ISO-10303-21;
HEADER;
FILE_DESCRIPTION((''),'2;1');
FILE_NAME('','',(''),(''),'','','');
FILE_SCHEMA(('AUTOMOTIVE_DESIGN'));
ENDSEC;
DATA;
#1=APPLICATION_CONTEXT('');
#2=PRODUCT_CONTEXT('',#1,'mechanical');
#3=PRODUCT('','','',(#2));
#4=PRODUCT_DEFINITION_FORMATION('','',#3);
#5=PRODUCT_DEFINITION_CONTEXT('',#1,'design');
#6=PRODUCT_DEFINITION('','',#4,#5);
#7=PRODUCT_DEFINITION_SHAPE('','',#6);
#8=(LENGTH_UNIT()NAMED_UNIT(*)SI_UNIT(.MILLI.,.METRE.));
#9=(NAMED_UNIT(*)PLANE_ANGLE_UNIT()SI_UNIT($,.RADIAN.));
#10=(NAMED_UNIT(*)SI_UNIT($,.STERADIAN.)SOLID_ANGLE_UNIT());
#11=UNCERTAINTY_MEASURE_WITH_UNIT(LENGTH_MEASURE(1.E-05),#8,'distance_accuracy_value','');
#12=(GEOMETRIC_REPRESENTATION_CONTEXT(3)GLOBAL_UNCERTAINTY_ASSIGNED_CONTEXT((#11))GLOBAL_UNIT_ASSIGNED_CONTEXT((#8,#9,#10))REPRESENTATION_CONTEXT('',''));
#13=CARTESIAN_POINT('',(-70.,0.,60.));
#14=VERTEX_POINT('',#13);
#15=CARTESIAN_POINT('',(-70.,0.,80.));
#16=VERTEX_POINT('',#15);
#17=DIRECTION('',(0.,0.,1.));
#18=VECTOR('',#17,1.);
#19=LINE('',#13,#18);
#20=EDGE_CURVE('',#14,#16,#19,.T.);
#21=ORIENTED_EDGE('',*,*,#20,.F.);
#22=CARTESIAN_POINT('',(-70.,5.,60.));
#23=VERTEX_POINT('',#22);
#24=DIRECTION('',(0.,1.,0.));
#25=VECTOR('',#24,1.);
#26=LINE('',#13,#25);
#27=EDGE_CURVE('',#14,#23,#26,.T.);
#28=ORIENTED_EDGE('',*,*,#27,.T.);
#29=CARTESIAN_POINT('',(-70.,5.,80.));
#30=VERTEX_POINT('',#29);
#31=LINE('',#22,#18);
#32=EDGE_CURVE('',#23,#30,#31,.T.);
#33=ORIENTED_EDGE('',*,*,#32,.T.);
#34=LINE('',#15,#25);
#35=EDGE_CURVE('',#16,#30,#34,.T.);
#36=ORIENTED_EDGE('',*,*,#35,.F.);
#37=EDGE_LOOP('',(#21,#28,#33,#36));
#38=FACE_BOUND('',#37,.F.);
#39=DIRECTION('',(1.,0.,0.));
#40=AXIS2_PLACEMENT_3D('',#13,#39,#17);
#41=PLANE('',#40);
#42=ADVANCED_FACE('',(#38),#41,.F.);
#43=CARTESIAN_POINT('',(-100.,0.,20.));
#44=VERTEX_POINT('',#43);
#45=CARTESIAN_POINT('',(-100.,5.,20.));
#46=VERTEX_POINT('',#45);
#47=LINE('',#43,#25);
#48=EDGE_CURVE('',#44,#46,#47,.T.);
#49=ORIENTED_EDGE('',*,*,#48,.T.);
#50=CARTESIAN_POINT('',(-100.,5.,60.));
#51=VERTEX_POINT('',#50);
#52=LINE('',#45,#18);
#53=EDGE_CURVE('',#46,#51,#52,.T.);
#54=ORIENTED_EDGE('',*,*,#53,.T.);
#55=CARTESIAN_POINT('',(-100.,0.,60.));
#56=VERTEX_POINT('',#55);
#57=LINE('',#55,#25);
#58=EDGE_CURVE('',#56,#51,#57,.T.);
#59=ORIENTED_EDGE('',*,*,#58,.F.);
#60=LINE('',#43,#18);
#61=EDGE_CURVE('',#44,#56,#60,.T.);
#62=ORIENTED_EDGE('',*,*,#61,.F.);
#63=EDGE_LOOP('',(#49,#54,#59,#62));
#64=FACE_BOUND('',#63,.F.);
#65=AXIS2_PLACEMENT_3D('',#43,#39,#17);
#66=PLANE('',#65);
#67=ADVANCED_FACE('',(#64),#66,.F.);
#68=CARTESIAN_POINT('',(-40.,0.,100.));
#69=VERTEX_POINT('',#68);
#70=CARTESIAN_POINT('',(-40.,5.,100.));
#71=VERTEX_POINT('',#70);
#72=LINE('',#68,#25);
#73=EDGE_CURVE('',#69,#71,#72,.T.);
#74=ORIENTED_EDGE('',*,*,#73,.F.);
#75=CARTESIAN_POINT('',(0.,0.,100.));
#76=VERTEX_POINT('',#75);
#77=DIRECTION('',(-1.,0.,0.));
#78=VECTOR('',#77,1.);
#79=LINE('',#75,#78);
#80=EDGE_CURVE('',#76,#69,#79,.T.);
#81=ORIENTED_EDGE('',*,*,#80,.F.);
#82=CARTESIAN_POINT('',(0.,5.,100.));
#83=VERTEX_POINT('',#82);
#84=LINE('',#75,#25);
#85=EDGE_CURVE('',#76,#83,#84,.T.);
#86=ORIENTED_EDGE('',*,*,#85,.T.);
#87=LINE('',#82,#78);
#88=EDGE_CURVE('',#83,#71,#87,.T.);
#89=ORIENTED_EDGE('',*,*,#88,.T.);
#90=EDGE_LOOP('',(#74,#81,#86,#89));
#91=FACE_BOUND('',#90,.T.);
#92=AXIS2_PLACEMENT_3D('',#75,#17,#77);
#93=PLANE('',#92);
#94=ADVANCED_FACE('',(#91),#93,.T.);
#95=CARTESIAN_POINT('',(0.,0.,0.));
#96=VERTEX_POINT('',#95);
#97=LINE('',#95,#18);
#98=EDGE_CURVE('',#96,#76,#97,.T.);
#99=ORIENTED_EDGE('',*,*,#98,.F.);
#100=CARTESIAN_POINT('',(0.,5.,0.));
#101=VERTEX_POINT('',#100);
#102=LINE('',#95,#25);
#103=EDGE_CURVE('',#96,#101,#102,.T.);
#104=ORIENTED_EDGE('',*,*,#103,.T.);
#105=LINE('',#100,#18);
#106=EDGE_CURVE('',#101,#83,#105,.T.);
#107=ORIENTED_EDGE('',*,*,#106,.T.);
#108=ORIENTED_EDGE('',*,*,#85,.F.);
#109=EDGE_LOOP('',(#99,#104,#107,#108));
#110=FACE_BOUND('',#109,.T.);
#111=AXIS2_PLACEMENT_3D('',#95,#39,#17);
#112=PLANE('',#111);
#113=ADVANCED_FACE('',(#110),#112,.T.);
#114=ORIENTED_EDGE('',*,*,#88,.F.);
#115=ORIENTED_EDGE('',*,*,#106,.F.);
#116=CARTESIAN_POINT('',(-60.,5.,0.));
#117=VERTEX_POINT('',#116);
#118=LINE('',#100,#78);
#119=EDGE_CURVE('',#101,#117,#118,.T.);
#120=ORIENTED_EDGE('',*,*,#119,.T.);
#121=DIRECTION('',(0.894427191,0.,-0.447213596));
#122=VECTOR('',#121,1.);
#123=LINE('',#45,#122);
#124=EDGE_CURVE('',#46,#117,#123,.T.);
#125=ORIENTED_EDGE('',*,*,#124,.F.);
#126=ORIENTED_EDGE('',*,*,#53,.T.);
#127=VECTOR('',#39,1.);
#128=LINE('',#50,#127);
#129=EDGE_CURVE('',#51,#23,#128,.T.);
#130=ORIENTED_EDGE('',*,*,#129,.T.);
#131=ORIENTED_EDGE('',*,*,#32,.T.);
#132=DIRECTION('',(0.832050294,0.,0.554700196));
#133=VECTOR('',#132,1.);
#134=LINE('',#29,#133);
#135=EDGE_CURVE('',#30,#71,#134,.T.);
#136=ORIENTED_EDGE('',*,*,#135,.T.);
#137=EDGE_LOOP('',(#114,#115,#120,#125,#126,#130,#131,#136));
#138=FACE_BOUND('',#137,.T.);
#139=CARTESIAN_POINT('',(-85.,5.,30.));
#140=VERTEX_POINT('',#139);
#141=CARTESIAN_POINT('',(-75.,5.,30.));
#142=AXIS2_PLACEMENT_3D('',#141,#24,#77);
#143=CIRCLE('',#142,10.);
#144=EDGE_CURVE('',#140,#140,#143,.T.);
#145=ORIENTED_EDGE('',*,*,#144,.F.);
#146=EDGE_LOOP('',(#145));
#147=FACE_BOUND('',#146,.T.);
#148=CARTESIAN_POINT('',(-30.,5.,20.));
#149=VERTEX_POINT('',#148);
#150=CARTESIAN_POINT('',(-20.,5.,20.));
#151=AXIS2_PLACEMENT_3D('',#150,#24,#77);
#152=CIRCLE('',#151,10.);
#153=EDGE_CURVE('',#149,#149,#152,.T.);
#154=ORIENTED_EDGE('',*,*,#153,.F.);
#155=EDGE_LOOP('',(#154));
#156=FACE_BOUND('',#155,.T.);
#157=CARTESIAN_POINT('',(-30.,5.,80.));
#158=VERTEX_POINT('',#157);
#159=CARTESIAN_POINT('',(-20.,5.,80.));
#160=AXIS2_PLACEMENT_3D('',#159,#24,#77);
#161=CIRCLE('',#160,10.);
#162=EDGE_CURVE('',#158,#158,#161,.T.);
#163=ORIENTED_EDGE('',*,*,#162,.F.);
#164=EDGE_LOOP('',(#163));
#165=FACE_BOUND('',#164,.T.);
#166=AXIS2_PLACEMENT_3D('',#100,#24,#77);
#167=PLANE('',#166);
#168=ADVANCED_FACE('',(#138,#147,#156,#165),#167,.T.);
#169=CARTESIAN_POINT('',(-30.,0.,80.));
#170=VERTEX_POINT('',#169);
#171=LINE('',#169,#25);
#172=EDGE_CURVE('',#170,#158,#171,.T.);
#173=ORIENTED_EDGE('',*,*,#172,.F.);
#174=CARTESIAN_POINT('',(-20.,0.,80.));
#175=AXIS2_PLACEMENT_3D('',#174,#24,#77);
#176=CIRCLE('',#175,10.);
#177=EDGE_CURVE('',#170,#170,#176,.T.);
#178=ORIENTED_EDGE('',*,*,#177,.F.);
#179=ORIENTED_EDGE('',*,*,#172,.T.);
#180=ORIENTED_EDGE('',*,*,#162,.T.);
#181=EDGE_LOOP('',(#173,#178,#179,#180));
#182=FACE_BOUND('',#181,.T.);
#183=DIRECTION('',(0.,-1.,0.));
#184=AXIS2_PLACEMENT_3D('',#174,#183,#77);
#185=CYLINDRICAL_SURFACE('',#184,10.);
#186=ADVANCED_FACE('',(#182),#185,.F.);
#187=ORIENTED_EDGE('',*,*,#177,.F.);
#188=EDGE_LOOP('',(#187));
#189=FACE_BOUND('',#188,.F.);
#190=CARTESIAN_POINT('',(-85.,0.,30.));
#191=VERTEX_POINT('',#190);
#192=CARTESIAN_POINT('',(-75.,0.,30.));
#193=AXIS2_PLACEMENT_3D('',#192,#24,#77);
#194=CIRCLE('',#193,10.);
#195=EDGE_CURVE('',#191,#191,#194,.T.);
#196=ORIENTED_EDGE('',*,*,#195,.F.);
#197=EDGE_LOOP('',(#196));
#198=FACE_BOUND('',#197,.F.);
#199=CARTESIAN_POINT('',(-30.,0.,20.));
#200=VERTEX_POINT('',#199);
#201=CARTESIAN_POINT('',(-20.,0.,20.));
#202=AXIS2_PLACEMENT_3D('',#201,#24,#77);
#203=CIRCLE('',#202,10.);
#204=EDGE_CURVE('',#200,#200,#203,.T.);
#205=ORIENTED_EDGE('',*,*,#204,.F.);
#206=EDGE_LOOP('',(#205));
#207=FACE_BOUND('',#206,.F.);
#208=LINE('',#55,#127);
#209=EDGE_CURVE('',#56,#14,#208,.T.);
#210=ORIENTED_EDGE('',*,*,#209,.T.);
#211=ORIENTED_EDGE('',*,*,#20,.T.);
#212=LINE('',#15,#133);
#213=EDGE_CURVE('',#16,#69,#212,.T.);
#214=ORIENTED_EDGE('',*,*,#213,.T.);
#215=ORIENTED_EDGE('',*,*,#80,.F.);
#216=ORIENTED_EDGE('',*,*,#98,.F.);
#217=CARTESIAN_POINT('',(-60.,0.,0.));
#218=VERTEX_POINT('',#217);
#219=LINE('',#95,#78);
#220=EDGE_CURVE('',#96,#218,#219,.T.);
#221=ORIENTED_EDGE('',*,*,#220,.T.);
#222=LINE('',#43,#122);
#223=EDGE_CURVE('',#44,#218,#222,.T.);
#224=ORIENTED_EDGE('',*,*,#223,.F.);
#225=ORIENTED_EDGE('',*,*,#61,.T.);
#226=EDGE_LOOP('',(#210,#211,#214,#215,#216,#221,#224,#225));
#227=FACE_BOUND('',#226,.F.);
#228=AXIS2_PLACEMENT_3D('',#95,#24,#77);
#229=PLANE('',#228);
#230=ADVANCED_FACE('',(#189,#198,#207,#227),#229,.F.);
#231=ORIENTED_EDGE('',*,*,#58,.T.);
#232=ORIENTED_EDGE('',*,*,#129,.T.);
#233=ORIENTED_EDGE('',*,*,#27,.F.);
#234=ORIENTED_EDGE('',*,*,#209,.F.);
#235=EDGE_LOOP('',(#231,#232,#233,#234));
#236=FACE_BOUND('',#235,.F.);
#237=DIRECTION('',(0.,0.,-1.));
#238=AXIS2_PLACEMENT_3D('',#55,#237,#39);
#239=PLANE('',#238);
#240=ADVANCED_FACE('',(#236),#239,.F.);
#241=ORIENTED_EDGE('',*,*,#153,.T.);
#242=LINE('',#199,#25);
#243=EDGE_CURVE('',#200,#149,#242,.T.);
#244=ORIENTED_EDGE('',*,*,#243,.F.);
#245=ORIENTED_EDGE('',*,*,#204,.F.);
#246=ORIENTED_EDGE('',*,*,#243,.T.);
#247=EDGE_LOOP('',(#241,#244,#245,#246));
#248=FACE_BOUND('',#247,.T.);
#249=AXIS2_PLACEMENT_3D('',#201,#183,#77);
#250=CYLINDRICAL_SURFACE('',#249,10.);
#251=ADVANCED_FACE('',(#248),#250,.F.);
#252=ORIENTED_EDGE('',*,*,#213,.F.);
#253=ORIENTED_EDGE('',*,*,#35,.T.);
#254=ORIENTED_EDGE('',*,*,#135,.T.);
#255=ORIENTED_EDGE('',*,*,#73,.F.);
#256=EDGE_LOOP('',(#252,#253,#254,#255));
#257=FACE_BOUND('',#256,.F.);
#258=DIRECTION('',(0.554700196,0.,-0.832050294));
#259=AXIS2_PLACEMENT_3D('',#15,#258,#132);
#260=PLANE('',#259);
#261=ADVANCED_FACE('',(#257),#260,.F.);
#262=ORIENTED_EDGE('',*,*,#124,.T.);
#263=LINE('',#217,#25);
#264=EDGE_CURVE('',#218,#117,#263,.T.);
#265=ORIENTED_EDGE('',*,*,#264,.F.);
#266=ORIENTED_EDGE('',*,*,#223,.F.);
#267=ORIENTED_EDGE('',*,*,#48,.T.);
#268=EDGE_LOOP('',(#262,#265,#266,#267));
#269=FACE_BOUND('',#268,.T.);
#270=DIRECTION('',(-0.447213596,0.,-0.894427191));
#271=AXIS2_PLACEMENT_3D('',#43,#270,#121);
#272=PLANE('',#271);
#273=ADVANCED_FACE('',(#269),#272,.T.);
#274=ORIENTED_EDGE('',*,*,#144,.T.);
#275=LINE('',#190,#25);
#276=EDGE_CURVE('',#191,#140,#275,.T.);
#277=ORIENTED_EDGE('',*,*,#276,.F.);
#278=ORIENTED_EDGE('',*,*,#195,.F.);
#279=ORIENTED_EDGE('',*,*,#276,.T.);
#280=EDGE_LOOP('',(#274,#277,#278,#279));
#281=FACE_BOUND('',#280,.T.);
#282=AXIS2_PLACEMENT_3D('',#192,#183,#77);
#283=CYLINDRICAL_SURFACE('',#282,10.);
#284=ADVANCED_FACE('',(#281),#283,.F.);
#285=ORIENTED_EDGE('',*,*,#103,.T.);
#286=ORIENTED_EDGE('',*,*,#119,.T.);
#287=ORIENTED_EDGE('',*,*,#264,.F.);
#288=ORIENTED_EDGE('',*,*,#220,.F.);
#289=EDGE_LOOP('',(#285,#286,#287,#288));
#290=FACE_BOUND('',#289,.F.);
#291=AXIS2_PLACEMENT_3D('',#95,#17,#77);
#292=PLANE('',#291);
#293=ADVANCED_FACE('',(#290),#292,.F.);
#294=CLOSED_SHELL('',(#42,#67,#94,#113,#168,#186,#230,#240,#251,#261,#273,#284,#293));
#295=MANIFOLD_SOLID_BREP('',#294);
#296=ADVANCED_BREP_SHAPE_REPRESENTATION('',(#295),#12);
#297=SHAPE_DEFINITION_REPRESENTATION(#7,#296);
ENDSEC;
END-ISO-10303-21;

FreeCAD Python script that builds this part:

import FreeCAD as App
import Part
import Sketcher

V = App.Vector
Q = App.Units.Quantity

doc = App.newDocument("Part")
body = doc.addObject("PartDesign::Body", "Body")

# Sketch on XZ plane
sketch1 = body.newObject("Sketcher::SketchObject", "Sketch")
sketch1.AttachmentSupport = (doc.getObject("XZ_Plane"), [""])
sketch1.MapMode = "FlatFace"
sketch1.addGeometry([
    Part.LineSegment(V(0, 100, 0), V(0, 0, 0)),  # 0
    Part.LineSegment(V(0, 0, 0), V(-60, 0, 0)),  # 1
    Part.LineSegment(V(-60, 0, 0), V(-100, 20, 0)),  # 2
    Part.LineSegment(V(-100, 20, 0), V(-100, 60, 0)),  # 3
    Part.LineSegment(V(-100, 60, 0), V(-70, 60, 0)),  # 4
    Part.LineSegment(V(-70, 60, 0), V(-70, 80, 0)),  # 5
    Part.LineSegment(V(-70, 80, 0), V(-40, 100, 0)),  # 6
    Part.LineSegment(V(-40, 100, 0), V(0, 100, 0)),  # 7
    Part.Circle(V(-20, 20, 0), V(0, 0, 1), 10),  # 8
    Part.Circle(V(-75, 30, 0), V(0, 0, 1), 10),  # 9
    Part.Circle(V(-20, 80, 0), V(0, 0, 1), 10),  # 10
], False)
sketch1.addConstraint([
    Sketcher.Constraint("Coincident", 0, 2, 1, 1),
    Sketcher.Constraint("Coincident", 1, 2, 2, 1),
    Sketcher.Constraint("Coincident", 2, 2, 3, 1),
    Sketcher.Constraint("Coincident", 3, 2, 4, 1),
    Sketcher.Constraint("Coincident", 4, 2, 5, 1),
    Sketcher.Constraint("Coincident", 5, 2, 6, 1),
    Sketcher.Constraint("Coincident", 6, 2, 7, 1),
    Sketcher.Constraint("Coincident", 7, 2, 0, 1),
    Sketcher.Constraint("Vertical", 0),
    Sketcher.Constraint("Horizontal", 1),
    Sketcher.Constraint("Vertical", 3),
    Sketcher.Constraint("Horizontal", 4),
    Sketcher.Constraint("Vertical", 5),
    Sketcher.Constraint("Horizontal", 7),
    Sketcher.Constraint("Coincident", 0, 2, -1, 1),
    Sketcher.Constraint("Equal", 8, 9),
    Sketcher.Constraint("Equal", 9, 10),
    Sketcher.Constraint("Horizontal", 8, 3, 2, 2),
    Sketcher.Constraint("Horizontal", 10, 3, 5, 2),
    Sketcher.Constraint("Vertical", 8, 3, 10, 3),
    Sketcher.Constraint("Equal", 7, 3),
    Sketcher.Constraint("DistanceX", 7, 1, 7, 2, Q("40 mm")),
    Sketcher.Constraint("DistanceY", 0, 2, 0, 1, Q("100 mm")),
    Sketcher.Constraint("Diameter", 8, Q("20 mm")),
    Sketcher.Constraint("DistanceX", 2, 2, -1, 1, Q("100 mm")),
    Sketcher.Constraint("DistanceX", 1, 2, 8, 3, Q("40 mm")),
    Sketcher.Constraint("DistanceX", 2, 2, 1, 2, Q("40 mm")),
    Sketcher.Constraint("DistanceY", 4, 2, 6, 2, Q("40 mm")),
    Sketcher.Constraint("DistanceX", 4, 1, 4, 2, Q("30 mm")),
    Sketcher.Constraint("DistanceY", 5, 1, 5, 2, Q("20 mm")),
    Sketcher.Constraint("DistanceX", 9, 3, -1, 1, Q("75 mm")),
    Sketcher.Constraint("DistanceY", -1, 1, 9, 3, Q("30 mm")),
])
pad1 = body.newObject("PartDesign::Pad", "Pad")
pad1.Profile = sketch1
pad1.Length = 5
pad1.Reversed = True

doc.recompute()
